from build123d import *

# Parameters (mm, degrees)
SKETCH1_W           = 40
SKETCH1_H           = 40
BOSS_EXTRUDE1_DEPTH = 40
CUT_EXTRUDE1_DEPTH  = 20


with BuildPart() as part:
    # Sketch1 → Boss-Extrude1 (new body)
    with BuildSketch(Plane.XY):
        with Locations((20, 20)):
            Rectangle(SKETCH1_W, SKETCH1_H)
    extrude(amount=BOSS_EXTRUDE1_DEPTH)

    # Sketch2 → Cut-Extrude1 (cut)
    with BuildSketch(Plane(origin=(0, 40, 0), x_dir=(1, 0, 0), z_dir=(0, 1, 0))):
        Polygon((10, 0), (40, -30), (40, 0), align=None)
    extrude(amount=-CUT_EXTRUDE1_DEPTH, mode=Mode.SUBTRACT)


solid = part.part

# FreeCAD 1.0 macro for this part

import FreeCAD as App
import Part
import Sketcher
from FreeCAD import Vector
Q = App.Units.Quantity


def add_polygon(sketch, points):
    """Adds a closed chain of lines whose ends are joined by coincident constraints."""
    first, n = sketch.GeometryCount, len(points)
    for a, b in zip(points, points[1:] + points[:1]):
        sketch.addGeometry(Part.LineSegment(App.Vector(*a, 0), App.Vector(*b, 0)), False)
    for i in range(n):
        sketch.addConstraint(Sketcher.Constraint("Coincident", first + i, 2, first + (i + 1) % n, 1))

doc = App.newDocument("Part")
body = doc.addObject("PartDesign::Body", "Body")

sketch1 = body.newObject("Sketcher::SketchObject", "Sketch")
sketch1.AttachmentSupport = (doc.getObject("XY_Plane"), [""])
sketch1.MapMode = "FlatFace"
add_polygon(sketch1, [(0, 40), (0, 0), (40, 0), (40, 40)])
sketch1.addConstraint(Sketcher.Constraint("Vertical", 0))
sketch1.addConstraint(Sketcher.Constraint("Horizontal", 1))
sketch1.addConstraint(Sketcher.Constraint("Vertical", 2))
sketch1.addConstraint(Sketcher.Constraint("Horizontal", 3))
sketch1.addConstraint(Sketcher.Constraint("Coincident", 0, 2, -1, 1))
sketch1.addConstraint(Sketcher.Constraint("Equal", 3, 0))
sketch1.addConstraint(Sketcher.Constraint("DistanceX", 1, 1, 1, 2, Q("40 mm")))
pad1 = body.newObject("PartDesign::Pad", "Pad")
pad1.Profile = sketch1
pad1.Length = 40

sketch2 = body.newObject("Sketcher::SketchObject", "Sketch001")
sketch2.AttachmentSupport = (doc.getObject("XZ_Plane"), [""])
sketch2.MapMode = "FlatFace"
sketch2.AttachmentOffset = App.Placement(Vector(0, 0, -40), App.Rotation())
add_polygon(sketch2, [(10, 0), (40, 30), (40, 0)])
sketch2.addConstraint(Sketcher.Constraint("Vertical", 1))
sketch2.addConstraint(Sketcher.Constraint("Horizontal", 2))
sketch2.addConstraint(Sketcher.Constraint("PointOnObject", 1, 2, -1))
sketch2.addConstraint(Sketcher.Constraint("Equal", 2, 1))
sketch2.addConstraint(Sketcher.Constraint("DistanceX", 2, 2, 2, 1, Q("30 mm")))
sketch2.addConstraint(Sketcher.Constraint("DistanceX", -1, 1, 0, 2, Q("40 mm")))
pocket1 = body.newObject("PartDesign::Pocket", "Pocket")
pocket1.Profile = sketch2
pocket1.Length = 20
pocket1.Reversed = True

doc.recompute()
